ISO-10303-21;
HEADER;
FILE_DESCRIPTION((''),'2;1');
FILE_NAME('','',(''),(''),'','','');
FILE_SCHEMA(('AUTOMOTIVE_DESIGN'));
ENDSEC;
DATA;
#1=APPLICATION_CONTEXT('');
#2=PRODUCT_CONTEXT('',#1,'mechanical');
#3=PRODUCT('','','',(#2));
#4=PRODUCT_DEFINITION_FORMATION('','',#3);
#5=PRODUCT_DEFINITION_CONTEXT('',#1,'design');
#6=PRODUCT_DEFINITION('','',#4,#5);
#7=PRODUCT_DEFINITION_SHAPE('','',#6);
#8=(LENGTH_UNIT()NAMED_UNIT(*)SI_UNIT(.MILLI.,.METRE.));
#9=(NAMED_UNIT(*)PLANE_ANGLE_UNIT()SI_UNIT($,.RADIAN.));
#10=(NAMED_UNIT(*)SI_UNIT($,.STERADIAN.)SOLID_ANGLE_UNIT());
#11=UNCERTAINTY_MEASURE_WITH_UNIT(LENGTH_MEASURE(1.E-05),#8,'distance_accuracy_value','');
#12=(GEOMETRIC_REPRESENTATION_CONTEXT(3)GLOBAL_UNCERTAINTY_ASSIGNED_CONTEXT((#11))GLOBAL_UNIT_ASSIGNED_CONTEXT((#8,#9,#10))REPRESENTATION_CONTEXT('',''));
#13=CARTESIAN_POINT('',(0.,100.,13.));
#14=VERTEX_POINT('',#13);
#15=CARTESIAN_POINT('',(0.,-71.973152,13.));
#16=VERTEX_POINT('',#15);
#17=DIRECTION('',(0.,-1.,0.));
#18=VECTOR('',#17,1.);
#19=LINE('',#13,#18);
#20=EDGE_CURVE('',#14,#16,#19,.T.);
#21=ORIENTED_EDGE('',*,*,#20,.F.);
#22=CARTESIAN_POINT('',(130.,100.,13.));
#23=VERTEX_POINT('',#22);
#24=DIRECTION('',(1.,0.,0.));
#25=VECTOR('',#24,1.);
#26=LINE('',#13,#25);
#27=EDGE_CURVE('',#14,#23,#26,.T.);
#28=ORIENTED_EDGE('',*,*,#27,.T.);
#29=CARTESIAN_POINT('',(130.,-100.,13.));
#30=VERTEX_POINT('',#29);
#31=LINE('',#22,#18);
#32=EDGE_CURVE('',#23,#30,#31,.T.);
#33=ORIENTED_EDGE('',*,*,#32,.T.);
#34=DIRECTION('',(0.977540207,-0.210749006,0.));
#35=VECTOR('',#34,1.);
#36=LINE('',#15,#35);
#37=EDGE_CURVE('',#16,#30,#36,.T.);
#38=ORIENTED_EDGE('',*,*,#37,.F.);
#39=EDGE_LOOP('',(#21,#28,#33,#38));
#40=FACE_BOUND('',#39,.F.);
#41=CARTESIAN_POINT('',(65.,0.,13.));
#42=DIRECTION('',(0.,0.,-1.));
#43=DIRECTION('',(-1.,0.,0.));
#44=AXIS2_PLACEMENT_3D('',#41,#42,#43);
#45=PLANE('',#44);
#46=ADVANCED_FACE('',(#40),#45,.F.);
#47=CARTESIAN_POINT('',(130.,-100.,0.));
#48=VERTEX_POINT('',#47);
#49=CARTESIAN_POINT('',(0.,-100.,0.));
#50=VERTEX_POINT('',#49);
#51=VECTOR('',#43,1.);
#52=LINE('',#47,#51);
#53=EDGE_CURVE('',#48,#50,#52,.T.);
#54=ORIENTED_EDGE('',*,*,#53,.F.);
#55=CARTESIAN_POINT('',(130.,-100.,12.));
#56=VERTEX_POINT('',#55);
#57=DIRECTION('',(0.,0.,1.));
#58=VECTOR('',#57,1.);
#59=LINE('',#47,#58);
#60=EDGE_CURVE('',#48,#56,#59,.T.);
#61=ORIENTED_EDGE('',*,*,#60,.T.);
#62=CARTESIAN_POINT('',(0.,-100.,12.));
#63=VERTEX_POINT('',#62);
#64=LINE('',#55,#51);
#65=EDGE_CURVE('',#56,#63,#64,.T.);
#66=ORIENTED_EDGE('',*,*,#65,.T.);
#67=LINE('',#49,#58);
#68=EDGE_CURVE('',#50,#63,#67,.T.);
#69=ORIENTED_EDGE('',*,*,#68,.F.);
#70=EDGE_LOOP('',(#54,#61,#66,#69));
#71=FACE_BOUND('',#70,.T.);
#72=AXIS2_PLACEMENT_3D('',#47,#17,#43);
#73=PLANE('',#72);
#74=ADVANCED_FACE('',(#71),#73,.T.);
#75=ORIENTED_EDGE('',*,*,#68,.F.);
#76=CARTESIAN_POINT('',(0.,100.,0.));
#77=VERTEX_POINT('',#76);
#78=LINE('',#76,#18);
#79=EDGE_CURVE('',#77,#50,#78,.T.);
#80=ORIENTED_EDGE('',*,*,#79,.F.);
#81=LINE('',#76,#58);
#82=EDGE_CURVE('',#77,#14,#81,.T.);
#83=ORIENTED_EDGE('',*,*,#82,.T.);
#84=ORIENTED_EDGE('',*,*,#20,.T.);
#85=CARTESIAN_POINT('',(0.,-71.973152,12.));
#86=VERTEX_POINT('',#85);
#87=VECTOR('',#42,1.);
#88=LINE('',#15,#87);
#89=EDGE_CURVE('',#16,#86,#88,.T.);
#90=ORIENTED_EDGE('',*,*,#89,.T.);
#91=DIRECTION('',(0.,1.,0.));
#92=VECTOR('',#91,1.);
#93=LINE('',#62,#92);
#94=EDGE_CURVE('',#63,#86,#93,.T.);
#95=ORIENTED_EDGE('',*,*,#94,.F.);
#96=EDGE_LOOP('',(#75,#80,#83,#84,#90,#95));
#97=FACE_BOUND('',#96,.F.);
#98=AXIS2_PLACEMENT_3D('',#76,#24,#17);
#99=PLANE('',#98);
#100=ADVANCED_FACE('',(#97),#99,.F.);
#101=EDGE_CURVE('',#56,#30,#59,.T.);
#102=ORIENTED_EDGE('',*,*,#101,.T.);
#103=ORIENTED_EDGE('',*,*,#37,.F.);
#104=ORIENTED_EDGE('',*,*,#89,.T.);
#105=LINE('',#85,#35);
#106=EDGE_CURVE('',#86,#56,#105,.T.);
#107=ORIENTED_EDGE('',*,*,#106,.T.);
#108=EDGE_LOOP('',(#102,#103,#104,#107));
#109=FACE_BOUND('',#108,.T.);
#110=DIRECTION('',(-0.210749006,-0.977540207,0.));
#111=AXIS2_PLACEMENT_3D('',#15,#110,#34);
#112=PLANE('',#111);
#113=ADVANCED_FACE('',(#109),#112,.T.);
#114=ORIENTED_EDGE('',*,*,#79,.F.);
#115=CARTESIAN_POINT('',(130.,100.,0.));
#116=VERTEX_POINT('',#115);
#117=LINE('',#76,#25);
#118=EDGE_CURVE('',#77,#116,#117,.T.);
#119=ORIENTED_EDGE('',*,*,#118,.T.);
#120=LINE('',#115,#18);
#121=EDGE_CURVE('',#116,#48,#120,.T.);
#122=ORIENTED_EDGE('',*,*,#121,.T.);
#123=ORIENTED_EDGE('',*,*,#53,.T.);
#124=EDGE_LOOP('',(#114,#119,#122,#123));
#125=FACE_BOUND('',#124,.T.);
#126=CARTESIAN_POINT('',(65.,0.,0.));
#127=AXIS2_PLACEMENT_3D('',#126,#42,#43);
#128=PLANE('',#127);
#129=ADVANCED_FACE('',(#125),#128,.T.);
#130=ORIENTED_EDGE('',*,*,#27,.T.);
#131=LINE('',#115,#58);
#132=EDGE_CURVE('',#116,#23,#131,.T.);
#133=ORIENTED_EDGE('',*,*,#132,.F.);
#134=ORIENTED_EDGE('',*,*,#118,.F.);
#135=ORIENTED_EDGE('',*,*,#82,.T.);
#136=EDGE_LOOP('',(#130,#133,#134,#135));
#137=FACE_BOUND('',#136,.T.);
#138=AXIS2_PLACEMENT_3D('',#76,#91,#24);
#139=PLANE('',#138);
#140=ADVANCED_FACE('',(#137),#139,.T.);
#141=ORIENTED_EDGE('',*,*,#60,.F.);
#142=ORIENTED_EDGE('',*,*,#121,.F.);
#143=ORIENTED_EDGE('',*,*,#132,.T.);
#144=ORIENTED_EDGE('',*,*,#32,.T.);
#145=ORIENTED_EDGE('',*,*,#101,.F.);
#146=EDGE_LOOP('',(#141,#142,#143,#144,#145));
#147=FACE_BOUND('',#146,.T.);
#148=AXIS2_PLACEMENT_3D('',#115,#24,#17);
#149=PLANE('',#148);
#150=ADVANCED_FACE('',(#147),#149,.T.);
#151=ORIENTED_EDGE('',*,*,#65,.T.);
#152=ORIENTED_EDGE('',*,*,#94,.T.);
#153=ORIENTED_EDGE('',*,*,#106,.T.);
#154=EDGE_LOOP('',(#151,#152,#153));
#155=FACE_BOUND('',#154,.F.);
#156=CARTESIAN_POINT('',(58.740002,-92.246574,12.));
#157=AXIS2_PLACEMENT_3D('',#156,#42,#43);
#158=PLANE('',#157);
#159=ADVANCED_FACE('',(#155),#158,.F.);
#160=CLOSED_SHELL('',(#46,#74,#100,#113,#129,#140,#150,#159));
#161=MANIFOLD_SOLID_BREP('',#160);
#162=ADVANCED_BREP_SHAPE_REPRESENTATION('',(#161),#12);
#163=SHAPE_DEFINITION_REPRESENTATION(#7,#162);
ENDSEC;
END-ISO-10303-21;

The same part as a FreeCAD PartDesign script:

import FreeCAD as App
import Part
import Sketcher

doc = App.newDocument("Part")
body = doc.addObject("PartDesign::Body", "Body")

# Sketch on XY plane
sketch1 = body.newObject("Sketcher::SketchObject", "Sketch")
sketch1.AttachmentSupport = (doc.getObject("XY_Plane"), [""])
sketch1.MapMode = "FlatFace"
sketch1.addGeometry(Part.LineSegment(App.Vector(0, 100, 0), App.Vector(0, -100, 0)), False)
sketch1.addGeometry(Part.LineSegment(App.Vector(0, -100, 0), App.Vector(130, -100, 0)), False)
sketch1.addGeometry(Part.LineSegment(App.Vector(130, -100, 0), App.Vector(130, 100, 0)), False)
sketch1.addGeometry(Part.LineSegment(App.Vector(130, 100, 0), App.Vector(0, 100, 0)), False)
sketch1.addConstraint(Sketcher.Constraint("Coincident", 0, 2, 1, 1))
sketch1.addConstraint(Sketcher.Constraint("Coincident", 1, 2, 2, 1))
sketch1.addConstraint(Sketcher.Constraint("Coincident", 2, 2, 3, 1))
sketch1.addConstraint(Sketcher.Constraint("Coincident", 3, 2, 0, 1))
sketch1.addConstraint(Sketcher.Constraint("Vertical", 0))
sketch1.addConstraint(Sketcher.Constraint("Horizontal", 1))
sketch1.addConstraint(Sketcher.Constraint("Vertical", 2))
sketch1.addConstraint(Sketcher.Constraint("Horizontal", 3))
sketch1.addConstraint(Sketcher.Constraint("Symmetric", 0, 2, 3, 2, -1, 1))
sketch1.addConstraint(Sketcher.Constraint("DistanceX", 1, 1, 1, 2, 130.0))
sketch1.addConstraint(Sketcher.Constraint("DistanceY", 0, 2, 0, 1, 200.0))
pad1 = body.newObject("PartDesign::Pad", "Pad")
pad1.Profile = sketch1
pad1.Length = 13

# Sketch on XY plane
sketch2 = body.newObject("Sketcher::SketchObject", "Sketch001")
sketch2.AttachmentSupport = (doc.getObject("XY_Plane"), [""])
sketch2.MapMode = "FlatFace"
sketch2.AttachmentOffset = App.Placement(App.Vector(0, 0, 13), App.Rotation())
sketch2.addGeometry(Part.LineSegment(App.Vector(0, -71.973152, 0), App.Vector(0, -100, 0)), False)
sketch2.addGeometry(Part.LineSegment(App.Vector(0, -100, 0), App.Vector(130, -100, 0)), False)
sketch2.addGeometry(Part.LineSegment(App.Vector(130, -100, 0), App.Vector(0, -71.973152, 0)), False)
sketch2.addConstraint(Sketcher.Constraint("Coincident", 0, 2, 1, 1))
sketch2.addConstraint(Sketcher.Constraint("Coincident", 1, 2, 2, 1))
sketch2.addConstraint(Sketcher.Constraint("Coincident", 2, 2, 0, 1))
sketch2.addConstraint(Sketcher.Constraint("Vertical", 0))
sketch2.addConstraint(Sketcher.Constraint("Horizontal", 1))
sketch2.addConstraint(Sketcher.Constraint("PointOnObject", 0, 2, -2))
sketch2.addConstraint(Sketcher.Constraint("DistanceX", 1, 1, 1, 2, 130.0))
sketch2.addConstraint(Sketcher.Constraint("DistanceY", 0, 2, -1, 1, 100.0))
sketch2.addConstraint(Sketcher.Constraint("DistanceY", 0, 2, 0, 1, 28.026848))
pocket1 = body.newObject("PartDesign::Pocket", "Pocket")
pocket1.Profile = sketch2
pocket1.Length = 1

doc.recompute()
